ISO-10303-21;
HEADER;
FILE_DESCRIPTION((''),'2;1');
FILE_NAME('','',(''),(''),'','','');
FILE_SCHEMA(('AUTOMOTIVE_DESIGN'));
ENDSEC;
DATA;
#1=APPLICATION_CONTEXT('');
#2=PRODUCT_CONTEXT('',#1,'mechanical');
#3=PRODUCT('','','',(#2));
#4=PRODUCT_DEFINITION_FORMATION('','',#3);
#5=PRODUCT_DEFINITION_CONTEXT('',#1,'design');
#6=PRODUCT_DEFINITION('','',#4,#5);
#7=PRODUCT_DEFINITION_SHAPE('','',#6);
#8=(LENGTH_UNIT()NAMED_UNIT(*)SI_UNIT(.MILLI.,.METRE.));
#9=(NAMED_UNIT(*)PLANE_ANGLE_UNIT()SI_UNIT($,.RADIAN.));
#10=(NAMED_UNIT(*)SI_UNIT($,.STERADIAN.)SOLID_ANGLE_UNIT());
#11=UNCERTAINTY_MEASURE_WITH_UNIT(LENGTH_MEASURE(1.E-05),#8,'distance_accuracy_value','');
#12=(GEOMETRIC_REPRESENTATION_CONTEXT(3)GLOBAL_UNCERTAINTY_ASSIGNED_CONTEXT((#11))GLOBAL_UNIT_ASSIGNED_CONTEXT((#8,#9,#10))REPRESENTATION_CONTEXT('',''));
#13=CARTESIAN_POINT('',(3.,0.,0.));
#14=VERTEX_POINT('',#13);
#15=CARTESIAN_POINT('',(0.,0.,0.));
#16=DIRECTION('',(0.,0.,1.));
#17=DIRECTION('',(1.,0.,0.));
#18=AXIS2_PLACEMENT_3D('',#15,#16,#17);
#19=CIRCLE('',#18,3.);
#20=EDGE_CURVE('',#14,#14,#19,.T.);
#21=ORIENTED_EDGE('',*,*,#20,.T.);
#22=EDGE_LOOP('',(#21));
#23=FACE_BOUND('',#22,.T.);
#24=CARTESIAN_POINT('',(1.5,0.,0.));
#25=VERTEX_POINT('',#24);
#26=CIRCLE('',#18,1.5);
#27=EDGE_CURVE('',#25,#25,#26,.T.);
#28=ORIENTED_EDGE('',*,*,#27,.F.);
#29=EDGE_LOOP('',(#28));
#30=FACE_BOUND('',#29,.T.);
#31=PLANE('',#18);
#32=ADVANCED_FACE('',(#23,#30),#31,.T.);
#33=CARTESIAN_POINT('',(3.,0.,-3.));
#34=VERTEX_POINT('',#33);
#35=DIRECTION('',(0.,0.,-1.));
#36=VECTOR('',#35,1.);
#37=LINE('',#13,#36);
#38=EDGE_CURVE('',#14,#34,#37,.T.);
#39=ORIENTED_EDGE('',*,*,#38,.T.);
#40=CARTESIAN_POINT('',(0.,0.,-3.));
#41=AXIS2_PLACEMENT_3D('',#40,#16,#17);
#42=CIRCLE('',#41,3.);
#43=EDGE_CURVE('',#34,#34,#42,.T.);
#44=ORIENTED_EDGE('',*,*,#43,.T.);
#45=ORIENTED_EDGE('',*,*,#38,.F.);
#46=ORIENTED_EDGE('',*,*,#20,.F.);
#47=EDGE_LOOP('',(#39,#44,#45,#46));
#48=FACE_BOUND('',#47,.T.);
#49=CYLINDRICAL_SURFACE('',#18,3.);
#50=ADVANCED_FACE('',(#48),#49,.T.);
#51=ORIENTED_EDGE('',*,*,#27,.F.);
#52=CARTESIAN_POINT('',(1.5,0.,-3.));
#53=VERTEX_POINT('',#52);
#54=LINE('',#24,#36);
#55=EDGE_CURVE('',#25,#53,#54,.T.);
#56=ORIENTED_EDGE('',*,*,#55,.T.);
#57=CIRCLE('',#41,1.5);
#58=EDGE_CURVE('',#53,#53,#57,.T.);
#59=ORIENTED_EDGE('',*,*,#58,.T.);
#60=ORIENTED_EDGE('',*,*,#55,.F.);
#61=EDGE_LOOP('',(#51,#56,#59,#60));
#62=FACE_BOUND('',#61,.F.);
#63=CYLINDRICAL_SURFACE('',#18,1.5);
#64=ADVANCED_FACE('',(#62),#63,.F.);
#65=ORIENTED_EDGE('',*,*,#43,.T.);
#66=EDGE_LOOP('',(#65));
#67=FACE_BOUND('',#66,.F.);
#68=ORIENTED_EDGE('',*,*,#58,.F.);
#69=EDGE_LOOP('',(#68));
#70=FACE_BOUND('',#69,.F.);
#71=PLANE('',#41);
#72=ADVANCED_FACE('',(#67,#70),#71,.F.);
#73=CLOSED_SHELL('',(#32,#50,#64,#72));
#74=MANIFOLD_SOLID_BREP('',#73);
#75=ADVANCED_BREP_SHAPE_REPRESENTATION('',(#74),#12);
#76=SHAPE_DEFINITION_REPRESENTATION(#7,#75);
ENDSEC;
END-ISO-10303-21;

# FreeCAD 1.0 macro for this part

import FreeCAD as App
import Part
import Sketcher
from FreeCAD import Vector

doc = App.newDocument("Part")
params = doc.addObject("Spreadsheet::Sheet", "Params")
for row, (alias, value) in enumerate([
    ("sketch1_diameter", "6 mm"),
    ("sketch1_diameter2", "3 mm"),
    ("pad1_length", "3 mm"),
], start=1):
    params.set(f"A{row}", alias)
    params.set(f"B{row}", "=" + value)
    params.setAlias(f"B{row}", alias)

body = doc.addObject("PartDesign::Body", "Body")

# Sketch on XY plane
sketch1 = doc.addObject("Sketcher::SketchObject", "Sketch")
body.addObject(sketch1)
sketch1.AttachmentSupport = (doc.XY_Plane, [""])
sketch1.MapMode = "FlatFace"
sketch1.addGeometry([
    Part.Circle(Vector(0, 0, 0), Vector(0, 0, 1), 3),
    Part.Circle(Vector(0, 0, 0), Vector(0, 0, 1), 1.5),
], False)
sketch1.addConstraint([
    Sketcher.Constraint("Coincident", 0, 3, -1, 1),
    Sketcher.Constraint("Coincident", 1, 3, -1, 1),
    Sketcher.Constraint("Diameter", 0, 6.0),
    Sketcher.Constraint("Diameter", 1, 3.0),
])
sketch1.setExpression("Constraints[2]", "Params.sketch1_diameter")
sketch1.setExpression("Constraints[3]", "Params.sketch1_diameter2")
pad1 = doc.addObject("PartDesign::Pad", "Pad")
body.addObject(pad1)
pad1.Profile = sketch1
pad1.setExpression("Length", "Params.pad1_length")
pad1.Reversed = True

doc.recompute()
